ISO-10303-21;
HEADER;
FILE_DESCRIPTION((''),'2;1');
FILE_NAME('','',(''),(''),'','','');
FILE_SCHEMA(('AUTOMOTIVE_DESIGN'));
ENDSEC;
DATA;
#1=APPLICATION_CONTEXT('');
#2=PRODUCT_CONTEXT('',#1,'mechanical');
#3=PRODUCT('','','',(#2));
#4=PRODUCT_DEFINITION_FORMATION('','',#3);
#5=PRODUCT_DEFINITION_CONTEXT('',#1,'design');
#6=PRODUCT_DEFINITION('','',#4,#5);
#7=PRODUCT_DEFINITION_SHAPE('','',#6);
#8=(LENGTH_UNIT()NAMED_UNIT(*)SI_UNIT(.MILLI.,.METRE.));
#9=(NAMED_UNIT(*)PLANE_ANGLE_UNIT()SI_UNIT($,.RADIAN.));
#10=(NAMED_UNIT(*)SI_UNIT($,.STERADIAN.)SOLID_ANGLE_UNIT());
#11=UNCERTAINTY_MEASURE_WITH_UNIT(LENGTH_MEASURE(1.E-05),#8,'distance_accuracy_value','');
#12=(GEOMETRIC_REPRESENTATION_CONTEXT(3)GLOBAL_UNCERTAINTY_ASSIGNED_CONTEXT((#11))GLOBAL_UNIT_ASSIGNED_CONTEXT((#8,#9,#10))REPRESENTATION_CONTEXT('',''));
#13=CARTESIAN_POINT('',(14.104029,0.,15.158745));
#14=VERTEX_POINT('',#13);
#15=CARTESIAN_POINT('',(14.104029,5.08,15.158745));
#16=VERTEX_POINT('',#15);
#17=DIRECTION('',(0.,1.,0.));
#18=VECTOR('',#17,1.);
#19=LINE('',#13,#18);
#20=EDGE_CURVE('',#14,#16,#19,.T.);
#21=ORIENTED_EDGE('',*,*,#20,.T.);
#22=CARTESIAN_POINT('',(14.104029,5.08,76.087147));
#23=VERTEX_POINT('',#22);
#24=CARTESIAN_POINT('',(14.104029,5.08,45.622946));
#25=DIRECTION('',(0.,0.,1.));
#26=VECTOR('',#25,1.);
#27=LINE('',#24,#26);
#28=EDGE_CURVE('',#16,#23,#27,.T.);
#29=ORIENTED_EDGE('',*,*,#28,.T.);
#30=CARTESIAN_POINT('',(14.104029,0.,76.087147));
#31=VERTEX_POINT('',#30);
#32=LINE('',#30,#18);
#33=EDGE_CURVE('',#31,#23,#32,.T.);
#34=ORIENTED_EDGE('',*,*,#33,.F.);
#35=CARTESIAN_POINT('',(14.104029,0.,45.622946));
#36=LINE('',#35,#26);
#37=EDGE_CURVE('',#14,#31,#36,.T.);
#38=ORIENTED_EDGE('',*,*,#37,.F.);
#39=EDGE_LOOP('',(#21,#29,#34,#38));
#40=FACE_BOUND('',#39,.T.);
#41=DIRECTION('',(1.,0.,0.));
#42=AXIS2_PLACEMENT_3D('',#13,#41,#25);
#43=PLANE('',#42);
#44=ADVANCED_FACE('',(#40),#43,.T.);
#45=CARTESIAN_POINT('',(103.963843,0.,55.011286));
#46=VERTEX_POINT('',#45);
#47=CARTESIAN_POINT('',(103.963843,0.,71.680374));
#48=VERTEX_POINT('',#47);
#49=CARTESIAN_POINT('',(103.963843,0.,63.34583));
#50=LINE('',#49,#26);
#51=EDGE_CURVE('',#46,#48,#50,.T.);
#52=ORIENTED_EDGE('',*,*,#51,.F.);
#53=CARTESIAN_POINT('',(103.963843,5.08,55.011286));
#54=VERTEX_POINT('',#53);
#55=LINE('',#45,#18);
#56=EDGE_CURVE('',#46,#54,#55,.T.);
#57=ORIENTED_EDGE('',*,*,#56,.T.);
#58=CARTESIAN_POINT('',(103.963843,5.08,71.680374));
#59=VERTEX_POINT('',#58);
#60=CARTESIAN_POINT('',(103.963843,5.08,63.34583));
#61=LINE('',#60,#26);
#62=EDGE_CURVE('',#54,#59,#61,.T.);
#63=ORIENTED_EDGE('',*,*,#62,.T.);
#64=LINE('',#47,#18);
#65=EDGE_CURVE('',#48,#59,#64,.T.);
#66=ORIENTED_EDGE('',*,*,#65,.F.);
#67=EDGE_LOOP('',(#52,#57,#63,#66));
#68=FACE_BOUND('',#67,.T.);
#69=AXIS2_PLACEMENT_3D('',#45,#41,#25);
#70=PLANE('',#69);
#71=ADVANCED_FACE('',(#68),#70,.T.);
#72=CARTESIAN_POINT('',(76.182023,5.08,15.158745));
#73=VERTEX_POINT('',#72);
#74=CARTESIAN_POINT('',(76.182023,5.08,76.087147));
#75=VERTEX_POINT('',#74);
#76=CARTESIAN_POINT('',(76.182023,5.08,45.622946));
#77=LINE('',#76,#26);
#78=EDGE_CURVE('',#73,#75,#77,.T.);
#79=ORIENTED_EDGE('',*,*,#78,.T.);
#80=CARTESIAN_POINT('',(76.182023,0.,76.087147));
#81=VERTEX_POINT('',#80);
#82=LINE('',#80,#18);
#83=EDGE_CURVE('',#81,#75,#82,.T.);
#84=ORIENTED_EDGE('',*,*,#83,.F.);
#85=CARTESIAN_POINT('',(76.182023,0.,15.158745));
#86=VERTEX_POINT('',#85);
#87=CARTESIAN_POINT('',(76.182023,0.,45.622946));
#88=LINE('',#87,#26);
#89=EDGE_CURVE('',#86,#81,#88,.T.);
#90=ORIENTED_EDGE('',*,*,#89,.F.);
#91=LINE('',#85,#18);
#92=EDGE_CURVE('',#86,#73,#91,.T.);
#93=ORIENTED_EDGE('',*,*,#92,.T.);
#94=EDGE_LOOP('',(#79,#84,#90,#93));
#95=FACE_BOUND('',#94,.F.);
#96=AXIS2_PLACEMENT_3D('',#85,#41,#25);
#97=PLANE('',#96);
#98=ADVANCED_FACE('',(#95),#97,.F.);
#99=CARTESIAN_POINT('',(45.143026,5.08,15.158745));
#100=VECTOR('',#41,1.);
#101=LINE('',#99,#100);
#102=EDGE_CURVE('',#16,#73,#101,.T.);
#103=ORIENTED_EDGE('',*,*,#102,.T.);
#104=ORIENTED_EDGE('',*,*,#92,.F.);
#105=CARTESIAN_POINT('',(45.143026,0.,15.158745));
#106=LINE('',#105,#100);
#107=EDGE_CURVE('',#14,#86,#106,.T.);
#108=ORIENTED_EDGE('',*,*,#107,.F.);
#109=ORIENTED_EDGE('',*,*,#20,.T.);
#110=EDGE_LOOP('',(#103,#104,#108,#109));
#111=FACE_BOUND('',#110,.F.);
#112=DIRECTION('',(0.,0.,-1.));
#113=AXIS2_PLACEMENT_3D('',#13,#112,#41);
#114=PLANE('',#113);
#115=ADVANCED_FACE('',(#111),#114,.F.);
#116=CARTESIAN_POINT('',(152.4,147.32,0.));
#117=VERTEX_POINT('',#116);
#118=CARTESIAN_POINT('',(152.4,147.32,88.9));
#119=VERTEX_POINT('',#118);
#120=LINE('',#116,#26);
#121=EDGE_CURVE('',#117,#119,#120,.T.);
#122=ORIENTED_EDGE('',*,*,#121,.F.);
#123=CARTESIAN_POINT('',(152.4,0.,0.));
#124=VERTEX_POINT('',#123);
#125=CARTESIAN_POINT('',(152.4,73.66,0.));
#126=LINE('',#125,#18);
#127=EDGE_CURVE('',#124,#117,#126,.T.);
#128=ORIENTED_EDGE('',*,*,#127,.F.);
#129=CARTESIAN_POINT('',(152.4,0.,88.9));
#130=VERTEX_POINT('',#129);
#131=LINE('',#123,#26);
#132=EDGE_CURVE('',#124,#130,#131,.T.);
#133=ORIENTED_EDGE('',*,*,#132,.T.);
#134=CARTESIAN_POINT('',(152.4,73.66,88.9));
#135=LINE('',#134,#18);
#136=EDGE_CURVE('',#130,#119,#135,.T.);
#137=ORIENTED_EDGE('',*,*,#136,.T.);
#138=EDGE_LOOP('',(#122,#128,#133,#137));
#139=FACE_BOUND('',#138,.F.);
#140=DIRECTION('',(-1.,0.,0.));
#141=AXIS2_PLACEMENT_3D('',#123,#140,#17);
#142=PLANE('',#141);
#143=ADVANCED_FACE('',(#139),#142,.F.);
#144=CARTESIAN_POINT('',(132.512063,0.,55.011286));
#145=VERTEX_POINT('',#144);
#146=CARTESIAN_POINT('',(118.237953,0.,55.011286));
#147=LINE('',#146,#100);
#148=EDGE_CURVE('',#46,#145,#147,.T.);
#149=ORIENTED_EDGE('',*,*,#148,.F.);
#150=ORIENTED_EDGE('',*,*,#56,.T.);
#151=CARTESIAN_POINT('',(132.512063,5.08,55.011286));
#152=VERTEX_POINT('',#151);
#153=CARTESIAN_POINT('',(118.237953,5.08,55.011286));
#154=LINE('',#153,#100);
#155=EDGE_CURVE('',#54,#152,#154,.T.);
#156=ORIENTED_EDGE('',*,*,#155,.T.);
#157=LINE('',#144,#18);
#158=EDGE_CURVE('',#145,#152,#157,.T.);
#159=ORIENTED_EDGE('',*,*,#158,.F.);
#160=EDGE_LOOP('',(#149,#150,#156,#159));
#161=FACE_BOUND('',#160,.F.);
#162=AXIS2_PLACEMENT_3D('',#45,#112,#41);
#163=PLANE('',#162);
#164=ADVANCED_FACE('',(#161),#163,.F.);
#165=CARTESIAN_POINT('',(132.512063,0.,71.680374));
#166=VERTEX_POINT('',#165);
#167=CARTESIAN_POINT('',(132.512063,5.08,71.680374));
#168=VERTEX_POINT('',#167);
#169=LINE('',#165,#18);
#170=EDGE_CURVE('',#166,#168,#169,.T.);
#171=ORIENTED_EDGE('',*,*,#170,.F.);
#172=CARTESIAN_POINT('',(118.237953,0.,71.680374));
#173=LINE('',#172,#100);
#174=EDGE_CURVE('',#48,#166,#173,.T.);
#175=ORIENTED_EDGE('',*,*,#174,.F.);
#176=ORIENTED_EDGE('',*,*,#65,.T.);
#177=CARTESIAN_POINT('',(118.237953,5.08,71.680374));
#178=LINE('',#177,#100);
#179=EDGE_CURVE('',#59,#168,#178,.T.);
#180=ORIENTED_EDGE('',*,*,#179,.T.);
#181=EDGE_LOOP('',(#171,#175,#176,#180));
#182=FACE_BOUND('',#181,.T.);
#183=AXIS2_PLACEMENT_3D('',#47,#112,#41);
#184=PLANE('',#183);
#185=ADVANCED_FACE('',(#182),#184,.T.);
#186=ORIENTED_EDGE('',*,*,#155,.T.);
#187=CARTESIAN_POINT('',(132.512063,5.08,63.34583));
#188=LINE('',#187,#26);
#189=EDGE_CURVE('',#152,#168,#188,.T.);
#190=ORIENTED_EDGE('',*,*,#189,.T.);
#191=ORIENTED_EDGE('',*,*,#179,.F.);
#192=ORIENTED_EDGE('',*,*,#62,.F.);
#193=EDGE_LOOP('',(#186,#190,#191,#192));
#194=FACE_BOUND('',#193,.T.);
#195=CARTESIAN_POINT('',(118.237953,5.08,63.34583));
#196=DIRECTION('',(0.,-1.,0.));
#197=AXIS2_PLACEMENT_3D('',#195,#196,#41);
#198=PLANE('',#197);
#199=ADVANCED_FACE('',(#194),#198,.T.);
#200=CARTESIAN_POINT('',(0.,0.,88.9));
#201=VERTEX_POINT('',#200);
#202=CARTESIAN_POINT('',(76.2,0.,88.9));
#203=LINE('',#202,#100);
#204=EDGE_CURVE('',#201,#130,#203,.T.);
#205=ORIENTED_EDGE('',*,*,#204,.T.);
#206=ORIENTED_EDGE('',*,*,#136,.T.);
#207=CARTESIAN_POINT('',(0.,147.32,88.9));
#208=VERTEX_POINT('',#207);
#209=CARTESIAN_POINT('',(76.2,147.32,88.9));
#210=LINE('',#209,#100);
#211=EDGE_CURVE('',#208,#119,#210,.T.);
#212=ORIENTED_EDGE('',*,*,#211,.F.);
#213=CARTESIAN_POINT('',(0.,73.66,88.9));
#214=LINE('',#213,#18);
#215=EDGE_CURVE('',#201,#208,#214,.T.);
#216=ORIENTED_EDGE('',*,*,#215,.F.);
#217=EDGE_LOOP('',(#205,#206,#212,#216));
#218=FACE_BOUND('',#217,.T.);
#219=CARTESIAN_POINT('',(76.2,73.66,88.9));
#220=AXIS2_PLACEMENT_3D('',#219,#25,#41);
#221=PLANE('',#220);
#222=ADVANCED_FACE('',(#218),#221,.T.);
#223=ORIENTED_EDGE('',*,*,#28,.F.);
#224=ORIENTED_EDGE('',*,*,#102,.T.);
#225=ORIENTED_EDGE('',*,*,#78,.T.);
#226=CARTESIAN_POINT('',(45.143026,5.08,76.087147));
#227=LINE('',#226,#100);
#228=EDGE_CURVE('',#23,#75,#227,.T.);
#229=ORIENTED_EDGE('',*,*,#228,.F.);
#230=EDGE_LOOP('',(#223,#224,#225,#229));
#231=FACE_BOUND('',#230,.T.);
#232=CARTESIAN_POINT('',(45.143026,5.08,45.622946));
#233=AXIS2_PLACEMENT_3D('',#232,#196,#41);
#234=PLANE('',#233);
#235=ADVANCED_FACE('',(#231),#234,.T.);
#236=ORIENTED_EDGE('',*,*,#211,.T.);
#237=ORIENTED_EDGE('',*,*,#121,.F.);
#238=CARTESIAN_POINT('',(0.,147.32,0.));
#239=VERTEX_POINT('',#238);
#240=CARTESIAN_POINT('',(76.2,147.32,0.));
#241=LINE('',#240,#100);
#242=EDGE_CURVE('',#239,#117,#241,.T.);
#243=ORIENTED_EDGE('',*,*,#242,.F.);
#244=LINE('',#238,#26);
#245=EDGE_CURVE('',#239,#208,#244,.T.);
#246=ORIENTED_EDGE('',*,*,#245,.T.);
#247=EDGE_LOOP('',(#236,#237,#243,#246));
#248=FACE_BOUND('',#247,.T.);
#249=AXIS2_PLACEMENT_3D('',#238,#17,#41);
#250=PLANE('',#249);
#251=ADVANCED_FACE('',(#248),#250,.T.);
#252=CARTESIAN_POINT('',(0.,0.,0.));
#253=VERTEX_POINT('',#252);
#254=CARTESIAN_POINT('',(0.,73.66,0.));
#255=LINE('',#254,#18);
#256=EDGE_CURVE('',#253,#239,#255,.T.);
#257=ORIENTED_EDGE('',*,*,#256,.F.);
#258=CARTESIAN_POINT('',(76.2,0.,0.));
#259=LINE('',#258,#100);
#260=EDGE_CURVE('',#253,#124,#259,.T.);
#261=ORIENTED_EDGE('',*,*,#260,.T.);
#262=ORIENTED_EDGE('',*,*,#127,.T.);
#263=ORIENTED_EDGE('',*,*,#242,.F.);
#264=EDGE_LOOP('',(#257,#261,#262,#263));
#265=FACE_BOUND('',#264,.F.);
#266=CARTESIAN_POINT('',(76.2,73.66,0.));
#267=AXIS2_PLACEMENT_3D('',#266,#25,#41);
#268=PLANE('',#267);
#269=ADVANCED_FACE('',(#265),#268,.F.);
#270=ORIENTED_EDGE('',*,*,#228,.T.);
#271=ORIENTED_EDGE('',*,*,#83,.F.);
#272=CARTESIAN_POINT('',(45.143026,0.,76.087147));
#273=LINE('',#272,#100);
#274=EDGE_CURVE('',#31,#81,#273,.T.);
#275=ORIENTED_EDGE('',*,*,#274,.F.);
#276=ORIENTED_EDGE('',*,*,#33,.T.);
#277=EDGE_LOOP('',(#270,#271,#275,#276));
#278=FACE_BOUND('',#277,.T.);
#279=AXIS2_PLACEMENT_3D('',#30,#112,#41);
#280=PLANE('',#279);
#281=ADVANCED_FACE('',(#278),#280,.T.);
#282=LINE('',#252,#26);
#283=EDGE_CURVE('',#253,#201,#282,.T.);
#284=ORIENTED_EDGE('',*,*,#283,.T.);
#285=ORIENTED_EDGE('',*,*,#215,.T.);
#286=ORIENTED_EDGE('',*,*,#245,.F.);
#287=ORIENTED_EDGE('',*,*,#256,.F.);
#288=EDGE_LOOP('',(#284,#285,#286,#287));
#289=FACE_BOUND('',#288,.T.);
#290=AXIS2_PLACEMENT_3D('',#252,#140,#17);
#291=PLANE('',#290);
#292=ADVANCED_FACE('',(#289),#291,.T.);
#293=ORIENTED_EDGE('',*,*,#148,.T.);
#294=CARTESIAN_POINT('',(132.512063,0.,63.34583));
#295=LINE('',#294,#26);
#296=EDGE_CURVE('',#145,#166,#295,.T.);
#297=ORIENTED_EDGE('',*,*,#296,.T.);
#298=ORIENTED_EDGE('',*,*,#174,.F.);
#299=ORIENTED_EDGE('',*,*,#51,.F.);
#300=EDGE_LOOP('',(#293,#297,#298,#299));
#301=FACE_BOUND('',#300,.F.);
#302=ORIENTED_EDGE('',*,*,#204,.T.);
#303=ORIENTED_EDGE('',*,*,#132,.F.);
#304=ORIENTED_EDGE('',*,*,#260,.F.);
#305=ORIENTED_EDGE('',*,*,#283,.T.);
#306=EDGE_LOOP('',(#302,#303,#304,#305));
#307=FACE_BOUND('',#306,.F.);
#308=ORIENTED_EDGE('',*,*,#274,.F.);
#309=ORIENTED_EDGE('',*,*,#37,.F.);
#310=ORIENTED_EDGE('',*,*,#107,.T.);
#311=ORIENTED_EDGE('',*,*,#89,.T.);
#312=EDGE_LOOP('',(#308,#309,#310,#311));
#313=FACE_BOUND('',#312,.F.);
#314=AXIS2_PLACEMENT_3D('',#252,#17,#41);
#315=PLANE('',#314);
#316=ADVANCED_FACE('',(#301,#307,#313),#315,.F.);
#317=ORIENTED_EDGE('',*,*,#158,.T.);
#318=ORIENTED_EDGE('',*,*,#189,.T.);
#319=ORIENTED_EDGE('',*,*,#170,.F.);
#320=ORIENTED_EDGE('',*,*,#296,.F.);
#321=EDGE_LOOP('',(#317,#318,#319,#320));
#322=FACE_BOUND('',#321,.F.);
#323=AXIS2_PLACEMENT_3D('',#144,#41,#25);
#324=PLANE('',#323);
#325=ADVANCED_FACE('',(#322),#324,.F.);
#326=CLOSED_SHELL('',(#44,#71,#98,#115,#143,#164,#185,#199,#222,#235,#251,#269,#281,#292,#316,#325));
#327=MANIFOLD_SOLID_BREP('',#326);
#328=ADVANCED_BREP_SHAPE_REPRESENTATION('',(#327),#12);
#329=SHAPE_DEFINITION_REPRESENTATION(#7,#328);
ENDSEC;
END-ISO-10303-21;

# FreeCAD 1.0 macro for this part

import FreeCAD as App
import Part
import Sketcher
Q = App.Units.Quantity


def add_polygon(sketch, points):
    """Adds a closed chain of lines whose ends are joined by coincident constraints."""
    first, n = sketch.GeometryCount, len(points)
    for a, b in zip(points, points[1:] + points[:1]):
        sketch.addGeometry(Part.LineSegment(App.Vector(*a, 0), App.Vector(*b, 0)), False)
    for i in range(n):
        sketch.addConstraint(Sketcher.Constraint("Coincident", first + i, 2, first + (i + 1) % n, 1))

doc = App.newDocument("Part")
body = doc.addObject("PartDesign::Body", "Body")

# Sketch on XY plane
sketch1 = body.newObject("Sketcher::SketchObject", "Sketch")
sketch1.AttachmentSupport = (doc.getObject("XY_Plane"), [""])
sketch1.MapMode = "FlatFace"
add_polygon(sketch1, [(0, 147.32), (0, 0), (152.4, 0), (152.4, 147.32)])  # lines 0-3
sketch1.addConstraint(Sketcher.Constraint("Vertical", 0))
sketch1.addConstraint(Sketcher.Constraint("Horizontal", 1))
sketch1.addConstraint(Sketcher.Constraint("Vertical", 2))
sketch1.addConstraint(Sketcher.Constraint("Horizontal", 3))
sketch1.addConstraint(Sketcher.Constraint("Coincident", 0, 2, -1, 1))
sketch1.addConstraint(Sketcher.Constraint("DistanceX", 1, 1, 1, 2, Q("6 in")))
sketch1.addConstraint(Sketcher.Constraint("DistanceY", 0, 2, 0, 1, Q("5.8 in")))
pad1 = body.newObject("PartDesign::Pad", "Pad")
pad1.Profile = sketch1
pad1.Length = Q("3.5 in")

# Sketch on XZ plane
sketch2 = body.newObject("Sketcher::SketchObject", "Sketch001")
sketch2.AttachmentSupport = (doc.getObject("XZ_Plane"), [""])
sketch2.MapMode = "FlatFace"
add_polygon(sketch2, [(14.104029, 76.087147), (14.104029, 15.158745), (76.182023, 15.158745), (76.182023, 76.087147)])  # lines 0-3
add_polygon(sketch2, [(103.963843, 71.680374), (103.963843, 55.011286), (132.512063, 55.011286), (132.512063, 71.680374)])  # lines 4-7
sketch2.addConstraint(Sketcher.Constraint("Vertical", 0))
sketch2.addConstraint(Sketcher.Constraint("Horizontal", 1))
sketch2.addConstraint(Sketcher.Constraint("Vertical", 2))
sketch2.addConstraint(Sketcher.Constraint("Horizontal", 3))
sketch2.addConstraint(Sketcher.Constraint("Vertical", 4))
sketch2.addConstraint(Sketcher.Constraint("Horizontal", 5))
sketch2.addConstraint(Sketcher.Constraint("Vertical", 6))
sketch2.addConstraint(Sketcher.Constraint("Horizontal", 7))
sketch2.addConstraint(Sketcher.Constraint("DistanceX", 5, 1, 5, 2, 28.548219))
sketch2.addConstraint(Sketcher.Constraint("DistanceX", 1, 1, 1, 2, 62.077993))
sketch2.addConstraint(Sketcher.Constraint("DistanceY", 0, 2, 0, 1, 60.928402))
sketch2.addConstraint(Sketcher.Constraint("DistanceY", 4, 2, 4, 1, 16.669087))
sketch2.addConstraint(Sketcher.Constraint("DistanceX", -1, 1, 0, 2, 14.104029))
sketch2.addConstraint(Sketcher.Constraint("DistanceX", 2, 2, 4, 2, 27.781821))
sketch2.addConstraint(Sketcher.Constraint("DistanceY", 4, 2, 2, 2, 21.075861))
sketch2.addConstraint(Sketcher.Constraint("DistanceY", -1, 1, 0, 2, 15.158745))
pocket1 = body.newObject("PartDesign::Pocket", "Pocket")
pocket1.Profile = sketch2
pocket1.Length = Q("0.2 in")

doc.recompute()
